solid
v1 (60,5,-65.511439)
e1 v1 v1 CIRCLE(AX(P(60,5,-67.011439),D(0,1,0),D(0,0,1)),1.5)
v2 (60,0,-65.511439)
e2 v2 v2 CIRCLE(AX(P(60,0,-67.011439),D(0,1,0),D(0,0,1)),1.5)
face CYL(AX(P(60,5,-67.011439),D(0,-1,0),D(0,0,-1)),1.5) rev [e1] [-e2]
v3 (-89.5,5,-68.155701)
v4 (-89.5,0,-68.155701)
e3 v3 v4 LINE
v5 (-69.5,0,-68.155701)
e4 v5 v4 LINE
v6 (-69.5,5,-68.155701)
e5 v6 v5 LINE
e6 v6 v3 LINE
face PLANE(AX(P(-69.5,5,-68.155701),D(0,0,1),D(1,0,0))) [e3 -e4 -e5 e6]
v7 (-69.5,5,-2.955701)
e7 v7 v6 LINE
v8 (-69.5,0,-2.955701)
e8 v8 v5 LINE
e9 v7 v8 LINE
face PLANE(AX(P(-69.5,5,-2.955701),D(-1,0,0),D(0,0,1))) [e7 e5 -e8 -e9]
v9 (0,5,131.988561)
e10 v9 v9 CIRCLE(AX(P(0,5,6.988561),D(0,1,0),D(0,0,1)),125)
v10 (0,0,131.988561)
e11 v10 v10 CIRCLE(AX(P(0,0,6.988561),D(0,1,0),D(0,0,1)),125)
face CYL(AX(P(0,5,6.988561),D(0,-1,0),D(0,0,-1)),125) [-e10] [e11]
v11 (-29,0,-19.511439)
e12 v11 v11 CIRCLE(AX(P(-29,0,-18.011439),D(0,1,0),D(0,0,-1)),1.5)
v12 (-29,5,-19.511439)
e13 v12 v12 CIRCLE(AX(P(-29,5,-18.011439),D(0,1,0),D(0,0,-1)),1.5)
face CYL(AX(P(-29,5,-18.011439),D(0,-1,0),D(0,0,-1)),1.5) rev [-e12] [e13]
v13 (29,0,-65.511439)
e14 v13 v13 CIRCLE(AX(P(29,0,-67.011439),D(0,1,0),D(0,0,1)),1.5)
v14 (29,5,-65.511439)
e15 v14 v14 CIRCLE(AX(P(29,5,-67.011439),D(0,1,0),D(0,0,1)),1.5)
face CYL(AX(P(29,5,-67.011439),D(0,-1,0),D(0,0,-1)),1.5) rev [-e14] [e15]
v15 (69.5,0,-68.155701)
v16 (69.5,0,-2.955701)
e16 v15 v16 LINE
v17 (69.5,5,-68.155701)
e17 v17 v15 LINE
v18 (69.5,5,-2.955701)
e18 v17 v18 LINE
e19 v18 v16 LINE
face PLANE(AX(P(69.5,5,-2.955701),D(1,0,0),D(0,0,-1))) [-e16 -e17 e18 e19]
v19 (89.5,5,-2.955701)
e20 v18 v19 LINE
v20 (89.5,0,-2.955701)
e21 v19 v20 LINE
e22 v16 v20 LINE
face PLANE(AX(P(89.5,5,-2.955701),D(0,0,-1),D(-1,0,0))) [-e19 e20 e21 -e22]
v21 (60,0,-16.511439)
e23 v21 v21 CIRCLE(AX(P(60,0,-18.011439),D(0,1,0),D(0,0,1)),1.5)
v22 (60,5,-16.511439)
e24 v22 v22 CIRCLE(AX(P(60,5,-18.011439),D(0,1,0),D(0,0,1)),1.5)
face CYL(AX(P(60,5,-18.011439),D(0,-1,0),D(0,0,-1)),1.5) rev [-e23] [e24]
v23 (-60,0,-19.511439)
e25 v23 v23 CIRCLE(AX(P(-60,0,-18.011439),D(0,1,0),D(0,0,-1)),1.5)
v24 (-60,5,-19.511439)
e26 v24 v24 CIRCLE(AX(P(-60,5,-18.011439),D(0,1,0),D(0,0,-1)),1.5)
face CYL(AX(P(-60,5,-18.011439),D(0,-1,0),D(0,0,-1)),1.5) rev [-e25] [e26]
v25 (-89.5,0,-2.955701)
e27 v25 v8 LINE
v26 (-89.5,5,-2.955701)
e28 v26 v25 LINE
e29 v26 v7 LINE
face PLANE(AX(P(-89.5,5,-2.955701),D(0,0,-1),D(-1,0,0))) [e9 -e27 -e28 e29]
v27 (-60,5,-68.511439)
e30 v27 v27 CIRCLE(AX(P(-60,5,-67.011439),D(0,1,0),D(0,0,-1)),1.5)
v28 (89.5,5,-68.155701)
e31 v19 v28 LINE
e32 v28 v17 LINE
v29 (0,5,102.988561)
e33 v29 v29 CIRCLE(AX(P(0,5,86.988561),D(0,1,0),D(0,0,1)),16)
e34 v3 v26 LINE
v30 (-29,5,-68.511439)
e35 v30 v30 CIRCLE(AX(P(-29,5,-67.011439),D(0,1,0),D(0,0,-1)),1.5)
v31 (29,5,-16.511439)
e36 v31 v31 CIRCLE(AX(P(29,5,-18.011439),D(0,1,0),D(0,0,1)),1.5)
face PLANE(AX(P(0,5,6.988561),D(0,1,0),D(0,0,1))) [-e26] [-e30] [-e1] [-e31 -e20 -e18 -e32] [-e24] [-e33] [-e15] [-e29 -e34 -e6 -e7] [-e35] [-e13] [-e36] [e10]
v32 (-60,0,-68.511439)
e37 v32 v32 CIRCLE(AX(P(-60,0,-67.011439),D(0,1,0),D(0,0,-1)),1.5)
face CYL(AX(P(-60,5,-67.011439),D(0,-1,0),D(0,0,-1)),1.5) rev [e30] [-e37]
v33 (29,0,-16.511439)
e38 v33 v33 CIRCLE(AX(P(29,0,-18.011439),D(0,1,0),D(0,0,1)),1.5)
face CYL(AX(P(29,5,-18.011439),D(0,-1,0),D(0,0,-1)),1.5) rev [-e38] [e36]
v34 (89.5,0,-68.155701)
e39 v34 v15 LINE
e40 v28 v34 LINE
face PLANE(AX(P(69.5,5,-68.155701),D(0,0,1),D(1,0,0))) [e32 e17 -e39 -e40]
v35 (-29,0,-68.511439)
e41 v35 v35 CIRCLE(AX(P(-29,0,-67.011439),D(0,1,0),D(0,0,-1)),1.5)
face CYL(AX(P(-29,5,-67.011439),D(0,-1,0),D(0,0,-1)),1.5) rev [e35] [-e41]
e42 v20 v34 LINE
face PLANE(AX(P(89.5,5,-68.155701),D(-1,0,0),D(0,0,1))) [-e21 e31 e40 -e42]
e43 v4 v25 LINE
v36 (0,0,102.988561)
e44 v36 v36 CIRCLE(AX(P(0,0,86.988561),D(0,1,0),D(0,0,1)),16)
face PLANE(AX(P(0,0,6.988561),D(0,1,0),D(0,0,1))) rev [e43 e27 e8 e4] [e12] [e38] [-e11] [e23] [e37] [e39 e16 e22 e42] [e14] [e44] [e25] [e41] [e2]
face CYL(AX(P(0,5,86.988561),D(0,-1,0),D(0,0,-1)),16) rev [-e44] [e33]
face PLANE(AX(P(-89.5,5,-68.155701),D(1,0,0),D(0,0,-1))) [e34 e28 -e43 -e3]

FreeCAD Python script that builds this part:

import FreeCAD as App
import Part
import Sketcher
Q = App.Units.Quantity

doc = App.newDocument("Part")
body = doc.addObject("PartDesign::Body", "Body")

# Sketch on XZ plane
sketch1 = body.newObject("Sketcher::SketchObject", "Sketch")
sketch1.AttachmentSupport = (doc.getObject("XZ_Plane"), [""])
sketch1.MapMode = "FlatFace"
sketch1.addGeometry(Part.Circle(App.Vector(0, 6.988561, 0), App.Vector(0, 0, 1), 125), False)
sketch1.addGeometry(Part.Circle(App.Vector(0, 86.988561, 0), App.Vector(0, 0, 1), 16), False)
sketch1.addGeometry(Part.Circle(App.Vector(-60, -18.011439, 0), App.Vector(0, 0, 1), 1.5), False)
sketch1.addGeometry(Part.Circle(App.Vector(-29, -18.011439, 0), App.Vector(0, 0, 1), 1.5), False)
sketch1.addGeometry(Part.LineSegment(App.Vector(-69.5, -2.955701, 0), App.Vector(-89.5, -2.955701, 0)), False)
sketch1.addGeometry(Part.LineSegment(App.Vector(-89.5, -2.955701, 0), App.Vector(-89.5, -68.155701, 0)), False)
sketch1.addGeometry(Part.LineSegment(App.Vector(-89.5, -68.155701, 0), App.Vector(-69.5, -68.155701, 0)), False)
sketch1.addGeometry(Part.LineSegment(App.Vector(-69.5, -68.155701, 0), App.Vector(-69.5, -2.955701, 0)), False)
sketch1.addGeometry(Part.Circle(App.Vector(-60, -67.011439, 0), App.Vector(0, 0, 1), 1.5), False)
sketch1.addGeometry(Part.Circle(App.Vector(-29, -67.011439, 0), App.Vector(0, 0, 1), 1.5), False)
sketch1.addGeometry(Part.Circle(App.Vector(29, -18.011439, 0), App.Vector(0, 0, 1), 1.5), False)
sketch1.addGeometry(Part.Circle(App.Vector(60, -18.011439, 0), App.Vector(0, 0, 1), 1.5), False)
sketch1.addGeometry(Part.Circle(App.Vector(29, -67.011439, 0), App.Vector(0, 0, 1), 1.5), False)
sketch1.addGeometry(Part.LineSegment(App.Vector(89.5, -2.955701, 0), App.Vector(69.5, -2.955701, 0)), False)
sketch1.addGeometry(Part.LineSegment(App.Vector(69.5, -2.955701, 0), App.Vector(69.5, -68.155701, 0)), False)
sketch1.addGeometry(Part.LineSegment(App.Vector(69.5, -68.155701, 0), App.Vector(89.5, -68.155701, 0)), False)
sketch1.addGeometry(Part.LineSegment(App.Vector(89.5, -68.155701, 0), App.Vector(89.5, -2.955701, 0)), False)
sketch1.addGeometry(Part.Circle(App.Vector(60, -67.011439, 0), App.Vector(0, 0, 1), 1.5), False)
sketch1.addConstraint(Sketcher.Constraint("Coincident", 4, 2, 5, 1))
sketch1.addConstraint(Sketcher.Constraint("Coincident", 5, 2, 6, 1))
sketch1.addConstraint(Sketcher.Constraint("Coincident", 6, 2, 7, 1))
sketch1.addConstraint(Sketcher.Constraint("Coincident", 7, 2, 4, 1))
sketch1.addConstraint(Sketcher.Constraint("Coincident", 13, 2, 14, 1))
sketch1.addConstraint(Sketcher.Constraint("Coincident", 14, 2, 15, 1))
sketch1.addConstraint(Sketcher.Constraint("Coincident", 15, 2, 16, 1))
sketch1.addConstraint(Sketcher.Constraint("Coincident", 16, 2, 13, 1))
sketch1.addConstraint(Sketcher.Constraint("Horizontal", 4))
sketch1.addConstraint(Sketcher.Constraint("Vertical", 5))
sketch1.addConstraint(Sketcher.Constraint("Horizontal", 6))
sketch1.addConstraint(Sketcher.Constraint("Vertical", 7))
sketch1.addConstraint(Sketcher.Constraint("Horizontal", 13))
sketch1.addConstraint(Sketcher.Constraint("Vertical", 14))
sketch1.addConstraint(Sketcher.Constraint("Horizontal", 15))
sketch1.addConstraint(Sketcher.Constraint("Vertical", 16))
sketch1.addConstraint(Sketcher.Constraint("Equal", 2, 3))
sketch1.addConstraint(Sketcher.Constraint("Equal", 3, 8))
sketch1.addConstraint(Sketcher.Constraint("Equal", 8, 9))
sketch1.addConstraint(Sketcher.Constraint("Equal", 9, 10))
sketch1.addConstraint(Sketcher.Constraint("Equal", 10, 11))
sketch1.addConstraint(Sketcher.Constraint("Equal", 11, 12))
sketch1.addConstraint(Sketcher.Constraint("Equal", 12, 17))
sketch1.addConstraint(Sketcher.Constraint("Symmetric", 3, 3, 10, 3, -2))
sketch1.addConstraint(Sketcher.Constraint("Symmetric", 2, 3, 11, 3, -2))
sketch1.addConstraint(Sketcher.Constraint("Symmetric", 9, 3, 12, 3, -2))
sketch1.addConstraint(Sketcher.Constraint("Symmetric", 8, 3, 17, 3, -2))
sketch1.addConstraint(Sketcher.Constraint("Symmetric", 7, 2, 13, 2, -2))
sketch1.addConstraint(Sketcher.Constraint("Symmetric", 5, 2, 15, 2, -2))
sketch1.addConstraint(Sketcher.Constraint("PointOnObject", 0, 3, -2))
sketch1.addConstraint(Sketcher.Constraint("PointOnObject", 1, 3, -2))
sketch1.addConstraint(Sketcher.Constraint("Horizontal", 2, 3, 3, 3))
sketch1.addConstraint(Sketcher.Constraint("Horizontal", 8, 3, 9, 3))
sketch1.addConstraint(Sketcher.Constraint("Vertical", 2, 3, 8, 3))
sketch1.addConstraint(Sketcher.Constraint("Vertical", 3, 3, 9, 3))
sketch1.addConstraint(Sketcher.Constraint("Diameter", 0, Q("250 mm")))
sketch1.addConstraint(Sketcher.Constraint("Diameter", 1, Q("32 mm")))
sketch1.addConstraint(Sketcher.Constraint("Diameter", 2, Q("3 mm")))
sketch1.addConstraint(Sketcher.Constraint("DistanceX", 4, 2, 4, 1, Q("20 mm")))
sketch1.addConstraint(Sketcher.Constraint("DistanceY", 5, 2, 5, 1, Q("65.2 mm")))
sketch1.addConstraint(Sketcher.Constraint("DistanceX", 2, 3, -1, 1, Q("60 mm")))
sketch1.addConstraint(Sketcher.Constraint("DistanceX", 3, 3, -1, 1, Q("29 mm")))
sketch1.addConstraint(Sketcher.Constraint("DistanceY", 0, 3, 1, 3, Q("80 mm")))
sketch1.addConstraint(Sketcher.Constraint("DistanceY", 2, 3, 0, 3, Q("25 mm")))
sketch1.addConstraint(Sketcher.Constraint("DistanceY", 8, 3, 2, 3, Q("49 mm")))
sketch1.addConstraint(Sketcher.Constraint("DistanceX", 4, 2, -1, 1, Q("89.5 mm")))
sketch1.addConstraint(Sketcher.Constraint("DistanceY", 4, 2, -1, 1, Q("2.955701 mm")))
sketch1.addConstraint(Sketcher.Constraint("DistanceY", -1, 1, 0, 3, Q("6.988561 mm")))
pad1 = body.newObject("PartDesign::Pad", "Pad")
pad1.Profile = sketch1
pad1.Length = 5
pad1.Reversed = True

doc.recompute()
